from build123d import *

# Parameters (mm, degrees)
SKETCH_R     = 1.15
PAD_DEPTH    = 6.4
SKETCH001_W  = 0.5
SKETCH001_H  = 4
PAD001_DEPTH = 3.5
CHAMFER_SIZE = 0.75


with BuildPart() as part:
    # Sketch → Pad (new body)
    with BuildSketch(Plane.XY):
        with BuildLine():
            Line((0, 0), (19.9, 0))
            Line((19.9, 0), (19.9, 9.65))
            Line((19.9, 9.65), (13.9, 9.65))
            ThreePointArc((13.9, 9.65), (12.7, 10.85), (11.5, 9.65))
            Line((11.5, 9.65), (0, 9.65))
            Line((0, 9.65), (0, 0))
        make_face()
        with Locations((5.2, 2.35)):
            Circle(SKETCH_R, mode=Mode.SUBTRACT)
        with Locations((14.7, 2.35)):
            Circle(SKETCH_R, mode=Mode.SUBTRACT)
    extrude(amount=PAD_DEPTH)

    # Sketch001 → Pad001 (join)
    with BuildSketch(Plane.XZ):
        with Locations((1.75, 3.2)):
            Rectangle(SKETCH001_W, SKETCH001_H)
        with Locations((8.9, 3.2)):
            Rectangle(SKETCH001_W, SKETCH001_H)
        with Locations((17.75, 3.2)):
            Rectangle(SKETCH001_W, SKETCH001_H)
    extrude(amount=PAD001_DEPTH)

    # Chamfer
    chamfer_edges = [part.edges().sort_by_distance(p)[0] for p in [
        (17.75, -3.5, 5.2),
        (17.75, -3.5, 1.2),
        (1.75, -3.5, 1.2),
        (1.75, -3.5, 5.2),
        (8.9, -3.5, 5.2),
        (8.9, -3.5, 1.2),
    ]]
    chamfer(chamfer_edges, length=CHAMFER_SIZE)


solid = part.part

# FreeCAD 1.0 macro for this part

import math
import FreeCAD as App
import Part
import Sketcher


def edges_at(feature, points):
    """Names of the edges that pass closest to the given points."""
    edges = feature.Shape.Edges
    near = lambda p: min(range(len(edges)), key=lambda i: edges[i].distToShape(Part.Vertex(*p))[0])
    return sorted({f"Edge{near(p) + 1}" for p in points})

doc = App.newDocument("Part")
body = doc.addObject("PartDesign::Body", "Body")

# Sketch on XY plane
sketch1 = doc.addObject("Sketcher::SketchObject", "Sketch")
body.addObject(sketch1)
sketch1.AttachmentSupport = (doc.XY_Plane, [""])
sketch1.MapMode = "FlatFace"
sketch1.addGeometry(Part.LineSegment(App.Vector(0, 0, 0), App.Vector(19.9, 0, 0)), False)
sketch1.addGeometry(Part.LineSegment(App.Vector(19.9, 0, 0), App.Vector(19.9, 9.7, 0)), False)
sketch1.addGeometry(Part.LineSegment(App.Vector(19.9, 9.7, 0), App.Vector(13.9, 9.7, 0)), False)
sketch1.addGeometry(Part.ArcOfCircle(Part.Circle(App.Vector(12.7, 9.7, 0), App.Vector(0, 0, 1), 1.2), math.radians(0), math.radians(180)), False)
sketch1.addGeometry(Part.LineSegment(App.Vector(11.5, 9.7, 0), App.Vector(0, 9.7, 0)), False)
sketch1.addGeometry(Part.LineSegment(App.Vector(0, 9.7, 0), App.Vector(0, 0, 0)), False)
sketch1.addGeometry(Part.Circle(App.Vector(5.2, 2.4, 0), App.Vector(0, 0, 1), 1.1), False)
sketch1.addGeometry(Part.Circle(App.Vector(14.7, 2.4, 0), App.Vector(0, 0, 1), 1.1), False)
sketch1.addConstraint(Sketcher.Constraint("Coincident", 0, 2, 1, 1))
sketch1.addConstraint(Sketcher.Constraint("Coincident", 1, 2, 2, 1))
sketch1.addConstraint(Sketcher.Constraint("Coincident", 2, 2, 3, 1))
sketch1.addConstraint(Sketcher.Constraint("Coincident", 3, 2, 4, 1))
sketch1.addConstraint(Sketcher.Constraint("Coincident", 4, 2, 5, 1))
sketch1.addConstraint(Sketcher.Constraint("Coincident", 5, 2, 0, 1))
sketch1.addConstraint(Sketcher.Constraint("Horizontal", 0))
sketch1.addConstraint(Sketcher.Constraint("Vertical", 1))
sketch1.addConstraint(Sketcher.Constraint("Horizontal", 2))
sketch1.addConstraint(Sketcher.Constraint("Horizontal", 4))
sketch1.addConstraint(Sketcher.Constraint("Vertical", 5))
sketch1.addConstraint(Sketcher.Constraint("Coincident", 5, 2, -1, 1))
sketch1.addConstraint(Sketcher.Constraint("Equal", 6, 7))
sketch1.addConstraint(Sketcher.Constraint("Horizontal", 6, 3, 7, 3))
sketch1.addConstraint(Sketcher.Constraint("Horizontal", 3, 3, 1, 2))
sketch1.addConstraint(Sketcher.Constraint("Horizontal", 2, 2, 3, 2))
sketch1.addConstraint(Sketcher.Constraint("Diameter", 6, 2.3))
sketch1.addConstraint(Sketcher.Constraint("Radius", 3, 1.2))
sketch1.addConstraint(Sketcher.Constraint("DistanceX", 2, 2, 2, 1, 6.0))
sketch1.addConstraint(Sketcher.Constraint("DistanceX", 0, 1, 0, 2, 19.9))
sketch1.addConstraint(Sketcher.Constraint("DistanceX", 3, 3, 7, 3, 2.0))
sketch1.addConstraint(Sketcher.Constraint("DistanceY", 1, 1, 1, 2, 9.65))
sketch1.addConstraint(Sketcher.Constraint("DistanceX", -1, 1, 6, 3, 5.2))
sketch1.addConstraint(Sketcher.Constraint("DistanceY", 6, 3, 3, 3, 7.3))
pad1 = doc.addObject("PartDesign::Pad", "Pad")
body.addObject(pad1)
pad1.Profile = sketch1
pad1.Length = 6.4

# Sketch on XZ plane
sketch2 = doc.addObject("Sketcher::SketchObject", "Sketch001")
body.addObject(sketch2)
sketch2.AttachmentSupport = (doc.XZ_Plane, [""])
sketch2.MapMode = "FlatFace"
sketch2.addGeometry(Part.LineSegment(App.Vector(1.5, 5.2, 0), App.Vector(1.5, 1.2, 0)), False)
sketch2.addGeometry(Part.LineSegment(App.Vector(1.5, 1.2, 0), App.Vector(2, 1.2, 0)), False)
sketch2.addGeometry(Part.LineSegment(App.Vector(2, 1.2, 0), App.Vector(2, 5.2, 0)), False)
sketch2.addGeometry(Part.LineSegment(App.Vector(2, 5.2, 0), App.Vector(1.5, 5.2, 0)), False)
sketch2.addGeometry(Part.LineSegment(App.Vector(8.7, 5.2, 0), App.Vector(8.7, 1.2, 0)), False)
sketch2.addGeometry(Part.LineSegment(App.Vector(8.7, 1.2, 0), App.Vector(9.2, 1.2, 0)), False)
sketch2.addGeometry(Part.LineSegment(App.Vector(9.2, 1.2, 0), App.Vector(9.2, 5.2, 0)), False)
sketch2.addGeometry(Part.LineSegment(App.Vector(9.2, 5.2, 0), App.Vector(8.7, 5.2, 0)), False)
sketch2.addGeometry(Part.LineSegment(App.Vector(17.5, 5.2, 0), App.Vector(17.5, 1.2, 0)), False)
sketch2.addGeometry(Part.LineSegment(App.Vector(17.5, 1.2, 0), App.Vector(18, 1.2, 0)), False)
sketch2.addGeometry(Part.LineSegment(App.Vector(18, 1.2, 0), App.Vector(18, 5.2, 0)), False)
sketch2.addGeometry(Part.LineSegment(App.Vector(18, 5.2, 0), App.Vector(17.5, 5.2, 0)), False)
sketch2.addConstraint(Sketcher.Constraint("Coincident", 0, 2, 1, 1))
sketch2.addConstraint(Sketcher.Constraint("Coincident", 1, 2, 2, 1))
sketch2.addConstraint(Sketcher.Constraint("Coincident", 2, 2, 3, 1))
sketch2.addConstraint(Sketcher.Constraint("Coincident", 3, 2, 0, 1))
sketch2.addConstraint(Sketcher.Constraint("Coincident", 4, 2, 5, 1))
sketch2.addConstraint(Sketcher.Constraint("Coincident", 5, 2, 6, 1))
sketch2.addConstraint(Sketcher.Constraint("Coincident", 6, 2, 7, 1))
sketch2.addConstraint(Sketcher.Constraint("Coincident", 7, 2, 4, 1))
sketch2.addConstraint(Sketcher.Constraint("Coincident", 8, 2, 9, 1))
sketch2.addConstraint(Sketcher.Constraint("Coincident", 9, 2, 10, 1))
sketch2.addConstraint(Sketcher.Constraint("Coincident", 10, 2, 11, 1))
sketch2.addConstraint(Sketcher.Constraint("Coincident", 11, 2, 8, 1))
sketch2.addConstraint(Sketcher.Constraint("Vertical", 0))
sketch2.addConstraint(Sketcher.Constraint("Horizontal", 1))
sketch2.addConstraint(Sketcher.Constraint("Vertical", 2))
sketch2.addConstraint(Sketcher.Constraint("Horizontal", 3))
sketch2.addConstraint(Sketcher.Constraint("Vertical", 4))
sketch2.addConstraint(Sketcher.Constraint("Horizontal", 5))
sketch2.addConstraint(Sketcher.Constraint("Vertical", 6))
sketch2.addConstraint(Sketcher.Constraint("Horizontal", 7))
sketch2.addConstraint(Sketcher.Constraint("Vertical", 8))
sketch2.addConstraint(Sketcher.Constraint("Horizontal", 9))
sketch2.addConstraint(Sketcher.Constraint("Vertical", 10))
sketch2.addConstraint(Sketcher.Constraint("Horizontal", 11))
sketch2.addConstraint(Sketcher.Constraint("Horizontal", 1, 2, 4, 2))
sketch2.addConstraint(Sketcher.Constraint("Horizontal", 3, 2, 6, 2))
sketch2.addConstraint(Sketcher.Constraint("Horizontal", 5, 2, 8, 2))
sketch2.addConstraint(Sketcher.Constraint("Horizontal", 7, 2, 10, 2))
sketch2.addConstraint(Sketcher.Constraint("Equal", 3, 5))
sketch2.addConstraint(Sketcher.Constraint("Equal", 7, 9))
sketch2.addConstraint(Sketcher.Constraint("DistanceY", 0, 2, 0, 1, 4.0))
sketch2.addConstraint(Sketcher.Constraint("DistanceX", 1, 1, 1, 2, 0.5))
sketch2.addConstraint(Sketcher.Constraint("DistanceX", -1, 1, 1, 2, 2.0))
sketch2.addConstraint(Sketcher.Constraint("DistanceX", -1, 1, 9, 2, 18.0))
sketch2.addConstraint(Sketcher.Constraint("DistanceY", -1, 1, 0, 2, 1.2))
sketch2.addConstraint(Sketcher.Constraint("DistanceX", -1, 1, 4, 2, 8.65))
pad2 = doc.addObject("PartDesign::Pad", "Pad001")
body.addObject(pad2)
pad2.Profile = sketch2
pad2.Length = 3.5
doc.recompute()

chamfer = doc.addObject("PartDesign::Chamfer", "Chamfer")
body.addObject(chamfer)
chamfer.Base = (pad2, edges_at(pad2, [
    (17.75, -3.5, 5.2),
    (17.75, -3.5, 1.2),
    (1.75, -3.5, 1.2),
    (1.75, -3.5, 5.2),
    (8.9, -3.5, 5.2),
    (8.9, -3.5, 1.2),
]))
chamfer.Size = 0.75

doc.recompute()
